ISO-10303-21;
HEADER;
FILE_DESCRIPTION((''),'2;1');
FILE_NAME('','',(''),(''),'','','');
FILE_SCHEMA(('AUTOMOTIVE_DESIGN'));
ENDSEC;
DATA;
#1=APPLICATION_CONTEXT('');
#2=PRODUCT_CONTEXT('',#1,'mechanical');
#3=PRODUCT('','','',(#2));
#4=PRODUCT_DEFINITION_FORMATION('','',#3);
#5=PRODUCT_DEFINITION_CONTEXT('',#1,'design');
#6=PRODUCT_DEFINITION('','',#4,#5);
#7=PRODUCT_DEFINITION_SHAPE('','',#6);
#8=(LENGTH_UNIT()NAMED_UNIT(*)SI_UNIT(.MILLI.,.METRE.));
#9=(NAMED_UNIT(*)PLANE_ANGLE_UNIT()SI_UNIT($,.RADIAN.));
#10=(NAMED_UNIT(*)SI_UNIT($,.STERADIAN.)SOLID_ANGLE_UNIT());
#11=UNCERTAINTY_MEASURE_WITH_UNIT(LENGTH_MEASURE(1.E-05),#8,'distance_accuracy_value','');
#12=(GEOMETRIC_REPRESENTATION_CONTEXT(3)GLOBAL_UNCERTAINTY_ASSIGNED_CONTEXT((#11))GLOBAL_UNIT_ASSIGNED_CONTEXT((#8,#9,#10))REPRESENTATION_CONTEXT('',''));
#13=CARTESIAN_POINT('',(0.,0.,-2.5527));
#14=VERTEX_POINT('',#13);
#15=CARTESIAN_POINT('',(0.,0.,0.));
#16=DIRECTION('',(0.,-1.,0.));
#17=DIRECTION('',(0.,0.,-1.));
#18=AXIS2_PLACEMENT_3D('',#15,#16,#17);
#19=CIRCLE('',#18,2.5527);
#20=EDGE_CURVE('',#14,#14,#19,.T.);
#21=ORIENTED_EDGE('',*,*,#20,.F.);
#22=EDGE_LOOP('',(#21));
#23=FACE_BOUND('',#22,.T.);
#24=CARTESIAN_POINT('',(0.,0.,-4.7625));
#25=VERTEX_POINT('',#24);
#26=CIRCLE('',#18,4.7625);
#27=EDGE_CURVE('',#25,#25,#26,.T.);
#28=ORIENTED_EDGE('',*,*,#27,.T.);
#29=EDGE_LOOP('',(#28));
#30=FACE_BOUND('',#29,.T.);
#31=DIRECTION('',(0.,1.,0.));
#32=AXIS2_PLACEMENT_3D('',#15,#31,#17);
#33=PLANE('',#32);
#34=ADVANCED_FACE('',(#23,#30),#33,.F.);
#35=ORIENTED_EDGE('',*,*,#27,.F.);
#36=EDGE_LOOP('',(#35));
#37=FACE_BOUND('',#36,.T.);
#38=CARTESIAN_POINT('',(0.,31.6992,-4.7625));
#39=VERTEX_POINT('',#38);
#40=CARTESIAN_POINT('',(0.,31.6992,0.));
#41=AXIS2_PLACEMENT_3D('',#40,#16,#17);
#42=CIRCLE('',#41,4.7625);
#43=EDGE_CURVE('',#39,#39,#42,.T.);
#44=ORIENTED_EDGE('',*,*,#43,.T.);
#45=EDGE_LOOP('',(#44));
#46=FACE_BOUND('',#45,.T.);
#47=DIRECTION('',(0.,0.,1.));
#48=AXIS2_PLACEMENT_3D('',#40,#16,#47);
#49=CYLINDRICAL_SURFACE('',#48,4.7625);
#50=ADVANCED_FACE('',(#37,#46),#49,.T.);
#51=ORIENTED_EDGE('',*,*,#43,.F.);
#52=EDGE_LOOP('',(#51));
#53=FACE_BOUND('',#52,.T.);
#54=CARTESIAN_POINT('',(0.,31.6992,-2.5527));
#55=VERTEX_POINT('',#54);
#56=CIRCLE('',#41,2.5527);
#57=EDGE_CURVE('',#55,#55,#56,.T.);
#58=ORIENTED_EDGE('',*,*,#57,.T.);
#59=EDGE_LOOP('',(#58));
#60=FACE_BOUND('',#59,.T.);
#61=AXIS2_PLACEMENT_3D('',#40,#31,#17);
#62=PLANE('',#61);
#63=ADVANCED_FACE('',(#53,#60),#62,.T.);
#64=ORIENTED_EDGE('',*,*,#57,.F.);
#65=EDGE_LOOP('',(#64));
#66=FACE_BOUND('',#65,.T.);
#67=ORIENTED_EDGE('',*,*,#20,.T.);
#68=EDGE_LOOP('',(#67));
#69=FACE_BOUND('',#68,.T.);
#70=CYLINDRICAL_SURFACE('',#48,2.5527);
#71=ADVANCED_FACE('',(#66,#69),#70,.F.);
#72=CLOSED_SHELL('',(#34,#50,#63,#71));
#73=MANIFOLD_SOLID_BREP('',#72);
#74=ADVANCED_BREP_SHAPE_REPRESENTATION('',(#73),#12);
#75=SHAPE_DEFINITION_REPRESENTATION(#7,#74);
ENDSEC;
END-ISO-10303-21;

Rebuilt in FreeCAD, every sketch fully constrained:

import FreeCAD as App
import Part
import Sketcher
Q = App.Units.Quantity

doc = App.newDocument("Part")
body = doc.addObject("PartDesign::Body", "Body")

# Sketch on XZ plane
sketch1 = body.newObject("Sketcher::SketchObject", "Sketch")
sketch1.AttachmentSupport = (doc.getObject("XZ_Plane"), [""])
sketch1.MapMode = "FlatFace"
sketch1.addGeometry(Part.Circle(App.Vector(0, 0, 0), App.Vector(0, 0, 1), 4.8), False)
sketch1.addGeometry(Part.Circle(App.Vector(0, 0, 0), App.Vector(0, 0, 1), 2.6), False)
sketch1.addConstraint(Sketcher.Constraint("Coincident", 0, 3, -1, 1))
sketch1.addConstraint(Sketcher.Constraint("Coincident", 1, 3, -1, 1))
sketch1.addConstraint(Sketcher.Constraint("Diameter", 0, Q("0.375 in")))
sketch1.addConstraint(Sketcher.Constraint("Diameter", 1, Q("0.201 in")))
pad1 = body.newObject("PartDesign::Pad", "Pad")
pad1.Profile = sketch1
pad1.Length = Q("1.248 in")
pad1.Reversed = True

doc.recompute()
